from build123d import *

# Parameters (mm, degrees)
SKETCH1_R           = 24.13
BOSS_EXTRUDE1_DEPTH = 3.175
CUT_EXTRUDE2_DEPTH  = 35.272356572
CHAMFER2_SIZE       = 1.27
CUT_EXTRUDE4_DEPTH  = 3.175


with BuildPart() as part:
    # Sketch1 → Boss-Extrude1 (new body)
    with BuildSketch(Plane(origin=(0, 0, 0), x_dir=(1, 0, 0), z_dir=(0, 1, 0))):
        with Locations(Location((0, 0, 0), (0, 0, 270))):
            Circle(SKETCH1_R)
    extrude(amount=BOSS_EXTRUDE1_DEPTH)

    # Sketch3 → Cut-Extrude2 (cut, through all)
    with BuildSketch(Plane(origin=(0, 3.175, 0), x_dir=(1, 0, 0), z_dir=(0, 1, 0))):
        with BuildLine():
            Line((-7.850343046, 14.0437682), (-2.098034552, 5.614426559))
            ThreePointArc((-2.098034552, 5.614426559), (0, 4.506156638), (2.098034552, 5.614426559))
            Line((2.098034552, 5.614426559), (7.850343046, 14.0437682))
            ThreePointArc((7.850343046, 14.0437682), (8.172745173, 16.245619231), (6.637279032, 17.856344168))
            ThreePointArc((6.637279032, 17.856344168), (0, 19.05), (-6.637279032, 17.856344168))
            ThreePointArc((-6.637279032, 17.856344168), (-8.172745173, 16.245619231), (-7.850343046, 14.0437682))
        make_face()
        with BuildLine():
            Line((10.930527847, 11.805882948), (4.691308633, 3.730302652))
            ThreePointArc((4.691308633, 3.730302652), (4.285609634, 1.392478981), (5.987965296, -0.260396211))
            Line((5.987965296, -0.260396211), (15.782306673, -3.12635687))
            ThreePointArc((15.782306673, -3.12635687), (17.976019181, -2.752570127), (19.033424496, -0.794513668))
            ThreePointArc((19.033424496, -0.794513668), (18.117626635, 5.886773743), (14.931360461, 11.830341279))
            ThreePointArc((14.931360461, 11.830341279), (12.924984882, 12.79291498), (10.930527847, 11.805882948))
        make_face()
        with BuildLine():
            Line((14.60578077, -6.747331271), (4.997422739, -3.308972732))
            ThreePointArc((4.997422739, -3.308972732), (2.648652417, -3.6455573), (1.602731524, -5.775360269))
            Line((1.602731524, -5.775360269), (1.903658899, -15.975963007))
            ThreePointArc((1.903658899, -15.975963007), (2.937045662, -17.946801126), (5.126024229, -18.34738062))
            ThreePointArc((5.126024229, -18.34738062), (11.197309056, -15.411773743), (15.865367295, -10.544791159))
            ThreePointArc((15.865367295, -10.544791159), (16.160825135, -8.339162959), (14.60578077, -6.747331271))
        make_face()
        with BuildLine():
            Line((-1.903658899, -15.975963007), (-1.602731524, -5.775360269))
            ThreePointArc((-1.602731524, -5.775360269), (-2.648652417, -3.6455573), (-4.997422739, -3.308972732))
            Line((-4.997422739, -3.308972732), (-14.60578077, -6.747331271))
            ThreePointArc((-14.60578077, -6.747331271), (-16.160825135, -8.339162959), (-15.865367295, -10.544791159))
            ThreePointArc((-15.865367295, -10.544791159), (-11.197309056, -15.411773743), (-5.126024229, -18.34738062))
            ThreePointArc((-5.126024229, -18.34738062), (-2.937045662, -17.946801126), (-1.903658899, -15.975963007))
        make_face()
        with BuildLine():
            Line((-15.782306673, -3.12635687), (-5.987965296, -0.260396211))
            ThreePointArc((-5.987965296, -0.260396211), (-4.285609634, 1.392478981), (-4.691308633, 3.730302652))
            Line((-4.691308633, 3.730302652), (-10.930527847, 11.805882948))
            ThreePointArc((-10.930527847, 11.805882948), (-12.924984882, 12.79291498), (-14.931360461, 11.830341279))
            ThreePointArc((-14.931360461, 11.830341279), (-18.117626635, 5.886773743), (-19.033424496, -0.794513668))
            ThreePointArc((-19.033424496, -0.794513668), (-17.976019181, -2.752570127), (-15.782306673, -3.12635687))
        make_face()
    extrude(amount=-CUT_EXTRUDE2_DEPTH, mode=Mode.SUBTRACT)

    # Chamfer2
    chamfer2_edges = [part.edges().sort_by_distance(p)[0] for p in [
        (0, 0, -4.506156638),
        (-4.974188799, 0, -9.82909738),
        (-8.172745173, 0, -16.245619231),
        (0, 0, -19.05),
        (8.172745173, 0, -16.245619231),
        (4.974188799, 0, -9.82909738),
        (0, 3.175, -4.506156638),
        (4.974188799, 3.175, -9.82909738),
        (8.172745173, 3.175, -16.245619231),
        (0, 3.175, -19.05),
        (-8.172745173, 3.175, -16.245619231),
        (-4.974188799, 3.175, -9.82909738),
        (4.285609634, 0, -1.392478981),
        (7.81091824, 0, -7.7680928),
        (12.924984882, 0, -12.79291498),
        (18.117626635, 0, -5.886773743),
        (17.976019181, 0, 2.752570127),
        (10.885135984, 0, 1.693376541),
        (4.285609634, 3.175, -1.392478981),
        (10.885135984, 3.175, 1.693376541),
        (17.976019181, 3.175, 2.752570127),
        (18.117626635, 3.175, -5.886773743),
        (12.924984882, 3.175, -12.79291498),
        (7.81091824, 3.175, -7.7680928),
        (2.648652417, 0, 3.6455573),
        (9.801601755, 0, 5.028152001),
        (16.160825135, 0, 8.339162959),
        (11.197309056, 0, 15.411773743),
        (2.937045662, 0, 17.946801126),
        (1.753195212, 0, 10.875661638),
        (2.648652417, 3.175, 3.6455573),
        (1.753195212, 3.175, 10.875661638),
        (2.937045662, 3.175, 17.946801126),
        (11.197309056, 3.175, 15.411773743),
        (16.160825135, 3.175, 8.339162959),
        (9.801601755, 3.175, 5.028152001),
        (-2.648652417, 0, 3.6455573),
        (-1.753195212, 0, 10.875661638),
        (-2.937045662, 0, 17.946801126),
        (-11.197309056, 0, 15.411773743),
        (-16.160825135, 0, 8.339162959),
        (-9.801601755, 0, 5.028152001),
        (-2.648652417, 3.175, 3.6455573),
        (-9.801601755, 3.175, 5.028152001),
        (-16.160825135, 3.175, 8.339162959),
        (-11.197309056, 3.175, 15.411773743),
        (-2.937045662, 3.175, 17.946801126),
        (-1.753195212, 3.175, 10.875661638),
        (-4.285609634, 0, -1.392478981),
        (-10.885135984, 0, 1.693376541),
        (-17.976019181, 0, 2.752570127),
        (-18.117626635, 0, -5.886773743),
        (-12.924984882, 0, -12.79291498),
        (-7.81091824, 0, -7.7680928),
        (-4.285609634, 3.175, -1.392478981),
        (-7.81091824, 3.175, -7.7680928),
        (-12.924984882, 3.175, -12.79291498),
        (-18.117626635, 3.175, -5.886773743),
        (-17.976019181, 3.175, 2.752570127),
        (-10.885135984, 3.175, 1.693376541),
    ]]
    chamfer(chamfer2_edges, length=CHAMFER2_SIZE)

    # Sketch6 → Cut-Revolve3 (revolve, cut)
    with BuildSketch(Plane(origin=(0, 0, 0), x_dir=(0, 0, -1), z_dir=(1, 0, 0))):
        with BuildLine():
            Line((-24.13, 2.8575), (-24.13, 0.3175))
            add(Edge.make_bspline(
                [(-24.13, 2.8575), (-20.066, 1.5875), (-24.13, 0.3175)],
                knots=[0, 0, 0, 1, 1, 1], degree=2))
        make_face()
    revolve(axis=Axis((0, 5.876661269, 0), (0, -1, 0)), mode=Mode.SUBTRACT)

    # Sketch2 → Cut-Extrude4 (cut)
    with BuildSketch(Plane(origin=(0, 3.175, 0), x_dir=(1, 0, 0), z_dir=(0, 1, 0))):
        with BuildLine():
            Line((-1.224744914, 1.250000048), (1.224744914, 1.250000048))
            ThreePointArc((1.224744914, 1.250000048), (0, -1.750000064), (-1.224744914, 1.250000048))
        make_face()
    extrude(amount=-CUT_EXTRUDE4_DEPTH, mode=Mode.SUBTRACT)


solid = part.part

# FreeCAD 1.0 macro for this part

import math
import FreeCAD as App
import Part
import Sketcher
from FreeCAD import Vector
Q = App.Units.Quantity


def edges_at(feature, points):
    """Names of the edges that pass closest to the given points."""
    edges = feature.Shape.Edges
    near = lambda p: min(range(len(edges)), key=lambda i: edges[i].distToShape(Part.Vertex(*p))[0])
    return sorted({f"Edge{near(p) + 1}" for p in points})

doc = App.newDocument("Part")
body = doc.addObject("PartDesign::Body", "Body")

# Sketch on XZ plane
sketch1 = body.newObject("Sketcher::SketchObject", "Sketch")
sketch1.AttachmentSupport = (doc.getObject("XZ_Plane"), [""])
sketch1.MapMode = "FlatFace"
sketch1.addGeometry(Part.Circle(Vector(0, 0, 0), Vector(0, 0, 1), 24), False)
sketch1.addConstraint([
    Sketcher.Constraint("Coincident", 0, 3, -1, 1),
    Sketcher.Constraint("Diameter", 0, Q("1.9 in")),
])
pad1 = body.newObject("PartDesign::Pad", "Pad")
pad1.Profile = sketch1
pad1.Length = Q("0.125 in")
pad1.Reversed = True

# Sketch on XZ plane
sketch2 = body.newObject("Sketcher::SketchObject", "Sketch001")
sketch2.AttachmentSupport = (doc.getObject("XZ_Plane"), [""])
sketch2.MapMode = "FlatFace"
sketch2.AttachmentOffset = App.Placement(Vector(0, 0, -0.125 * 25.4), App.Rotation())
sketch2.addGeometry([
    Part.LineSegment(Vector(-7.9, -14, 0), Vector(-2.1, -5.6, 0)),  # 0
    Part.ArcOfCircle(Part.Circle(Vector(0, -7, 0), Vector(0, 0, 1), 2.5), math.radians(34), math.radians(146)),  # 1
    Part.LineSegment(Vector(2.1, -5.6, 0), Vector(7.9, -14, 0)),  # 2
    Part.ArcOfCircle(Part.Circle(Vector(5.8, -15.5, 0), Vector(0, 0, 1), 2.5), math.radians(-70), math.radians(34)),  # 3
    Part.ArcOfCircle(Part.Circle(Vector(0, 0, 0), Vector(0, 0, 1), 19), math.radians(-110), math.radians(-70)),  # 4
    Part.ArcOfCircle(Part.Circle(Vector(-5.8, -15.5, 0), Vector(0, 0, 1), 2.5), math.radians(146), math.radians(250)),  # 5
    Part.LineSegment(Vector(10.9, -11.8, 0), Vector(4.7, -3.7, 0)),  # 6
    Part.ArcOfCircle(Part.Circle(Vector(6.7, -2.2, 0), Vector(0, 0, 1), 2.5), math.radians(106), math.radians(218)),  # 7
    Part.LineSegment(Vector(6, 0.3, 0), Vector(15.8, 3.1, 0)),  # 8
    Part.ArcOfCircle(Part.Circle(Vector(16.5, 0.7, 0), Vector(0, 0, 1), 2.5), math.radians(2), math.radians(106)),  # 9
    Part.ArcOfCircle(Part.Circle(Vector(0, 0, 0), Vector(0, 0, 1), 19.1), math.radians(-38), math.radians(2)),  # 10
    Part.ArcOfCircle(Part.Circle(Vector(12.9, -10.3, 0), Vector(0, 0, 1), 2.5), math.radians(-142), math.radians(-38)),  # 11
    Part.LineSegment(Vector(14.6, 6.7, 0), Vector(5, 3.3, 0)),  # 12
    Part.ArcOfCircle(Part.Circle(Vector(4.1, 5.7, 0), Vector(0, 0, 1), 2.5), math.radians(178), math.radians(290)),  # 13
    Part.LineSegment(Vector(1.6, 5.8, 0), Vector(1.9, 16, 0)),  # 14
    Part.ArcOfCircle(Part.Circle(Vector(4.4, 15.9, 0), Vector(0, 0, 1), 2.5), math.radians(74), math.radians(178)),  # 15
    Part.ArcOfCircle(Part.Circle(Vector(0, 0, 0), Vector(0, 0, 1), 19.1), math.radians(34), math.radians(74)),  # 16
    Part.ArcOfCircle(Part.Circle(Vector(13.7, 9.1, 0), Vector(0, 0, 1), 2.5), math.radians(-70), math.radians(34)),  # 17
    Part.LineSegment(Vector(-1.9, 16, 0), Vector(-1.6, 5.8, 0)),  # 18
    Part.ArcOfCircle(Part.Circle(Vector(-4.1, 5.7, 0), Vector(0, 0, 1), 2.5), math.radians(-110), math.radians(2)),  # 19
    Part.LineSegment(Vector(-5, 3.3, 0), Vector(-14.6, 6.7, 0)),  # 20
    Part.ArcOfCircle(Part.Circle(Vector(-13.7, 9.1, 0), Vector(0, 0, 1), 2.5), math.radians(146), math.radians(250)),  # 21
    Part.ArcOfCircle(Part.Circle(Vector(0, 0, 0), Vector(0, 0, 1), 19.1), math.radians(106), math.radians(146)),  # 22
    Part.ArcOfCircle(Part.Circle(Vector(-4.4, 15.9, 0), Vector(0, 0, 1), 2.5), math.radians(2), math.radians(106)),  # 23
    Part.LineSegment(Vector(-15.8, 3.1, 0), Vector(-6, 0.3, 0)),  # 24
    Part.ArcOfCircle(Part.Circle(Vector(-6.7, -2.2, 0), Vector(0, 0, 1), 2.5), math.radians(-38), math.radians(74)),  # 25
    Part.LineSegment(Vector(-4.7, -3.7, 0), Vector(-10.9, -11.8, 0)),  # 26
    Part.ArcOfCircle(Part.Circle(Vector(-12.9, -10.3, 0), Vector(0, 0, 1), 2.5), math.radians(-142), math.radians(-38)),  # 27
    Part.ArcOfCircle(Part.Circle(Vector(0, 0, 0), Vector(0, 0, 1), 19.1), math.radians(178), math.radians(218)),  # 28
    Part.ArcOfCircle(Part.Circle(Vector(-16.5, 0.7, 0), Vector(0, 0, 1), 2.5), math.radians(74), math.radians(178)),  # 29
], False)
sketch2.addConstraint([
    Sketcher.Constraint("Tangent", 0, 2, 1, 2),
    Sketcher.Constraint("Tangent", 1, 1, 2, 1),
    Sketcher.Constraint("Tangent", 2, 2, 3, 2),
    Sketcher.Constraint("Tangent", 3, 1, 4, 2),
    Sketcher.Constraint("Tangent", 4, 1, 5, 2),
    Sketcher.Constraint("Tangent", 5, 1, 0, 1),
    Sketcher.Constraint("Tangent", 6, 2, 7, 2),
    Sketcher.Constraint("Tangent", 7, 1, 8, 1),
    Sketcher.Constraint("Tangent", 8, 2, 9, 2),
    Sketcher.Constraint("Tangent", 9, 1, 10, 2),
    Sketcher.Constraint("Tangent", 10, 1, 11, 2),
    Sketcher.Constraint("Tangent", 11, 1, 6, 1),
    Sketcher.Constraint("Tangent", 12, 2, 13, 2),
    Sketcher.Constraint("Tangent", 13, 1, 14, 1),
    Sketcher.Constraint("Tangent", 14, 2, 15, 2),
    Sketcher.Constraint("Tangent", 15, 1, 16, 2),
    Sketcher.Constraint("Tangent", 16, 1, 17, 2),
    Sketcher.Constraint("Tangent", 17, 1, 12, 1),
    Sketcher.Constraint("Tangent", 18, 2, 19, 2),
    Sketcher.Constraint("Tangent", 19, 1, 20, 1),
    Sketcher.Constraint("Tangent", 20, 2, 21, 2),
    Sketcher.Constraint("Tangent", 21, 1, 22, 2),
    Sketcher.Constraint("Tangent", 22, 1, 23, 2),
    Sketcher.Constraint("Tangent", 23, 1, 18, 1),
    Sketcher.Constraint("Tangent", 24, 2, 25, 2),
    Sketcher.Constraint("Tangent", 25, 1, 26, 1),
    Sketcher.Constraint("Tangent", 26, 2, 27, 2),
    Sketcher.Constraint("Tangent", 27, 1, 28, 2),
    Sketcher.Constraint("Tangent", 28, 1, 29, 2),
    Sketcher.Constraint("Tangent", 29, 1, 24, 1),
    Sketcher.Constraint("Coincident", 4, 3, -1, 1),
    Sketcher.Constraint("Coincident", 10, 3, -1, 1),
    Sketcher.Constraint("Coincident", 16, 3, -1, 1),
    Sketcher.Constraint("Coincident", 22, 3, -1, 1),
    Sketcher.Constraint("Coincident", 28, 3, -1, 1),
    Sketcher.Constraint("Equal", 1, 3),
    Sketcher.Constraint("Equal", 3, 5),
    Sketcher.Constraint("Equal", 5, 7),
    Sketcher.Constraint("Equal", 7, 9),
    Sketcher.Constraint("Equal", 4, 10),
    Sketcher.Constraint("Equal", 9, 11),
    Sketcher.Constraint("Equal", 11, 13),
    Sketcher.Constraint("Equal", 13, 15),
    Sketcher.Constraint("Equal", 10, 16),
    Sketcher.Constraint("Equal", 15, 17),
    Sketcher.Constraint("Equal", 17, 19),
    Sketcher.Constraint("Equal", 19, 21),
    Sketcher.Constraint("Equal", 16, 22),
    Sketcher.Constraint("Equal", 21, 23),
    Sketcher.Constraint("Equal", 23, 25),
    Sketcher.Constraint("Equal", 25, 27),
    Sketcher.Constraint("Equal", 22, 28),
    Sketcher.Constraint("Equal", 27, 29),
    Sketcher.Constraint("Symmetric", 13, 3, 19, 3, -2),
    Sketcher.Constraint("Symmetric", 7, 3, 25, 3, -2),
    Sketcher.Constraint("Symmetric", 0, 2, 1, 1, -2),
    Sketcher.Constraint("Horizontal", 17, 3, 21, 3),
    Sketcher.Constraint("Horizontal", 15, 3, 23, 3),
    Sketcher.Constraint("Horizontal", 11, 3, 27, 3),
    Sketcher.Constraint("Horizontal", 9, 3, 29, 3),
    Sketcher.Constraint("Equal", 2, 6),
    Sketcher.Constraint("Equal", 6, 8),
    Sketcher.Constraint("Equal", 8, 12),
    Sketcher.Constraint("Equal", 12, 14),
    Sketcher.Constraint("Radius", 1, Q("0.1 in")),
    Sketcher.Constraint("Radius", 4, Q("0.75 in")),
    Sketcher.Constraint("DistanceX", 3, 3, 11, 3, Q("0.2830002 in")),
    Sketcher.Constraint("DistanceY", 3, 3, -1, 1, Q("15.475498 mm")),
    Sketcher.Constraint("DistanceX", 5, 3, 7, 3, Q("12.453602 mm")),
    Sketcher.Constraint("DistanceY", 7, 3, 17, 3, Q("11.316201 mm")),
    Sketcher.Constraint("DistanceY", 6, 2, 7, 1, Q("3.990699 mm")),
    Sketcher.Constraint("DistanceY", 13, 3, 13, 1, Q("0.0749 mm")),
])
pocket1 = body.newObject("PartDesign::Pocket", "Pocket")
pocket1.Profile = sketch2
pocket1.Type = "ThroughAll"
pocket1.Reversed = True
doc.recompute()

chamfer = body.newObject("PartDesign::Chamfer", "Chamfer")
chamfer.Base = (pocket1, edges_at(pocket1, [
    (0, 0, -4.506),
    (-4.974, 0, -9.829),
    (-8.173, 0, -16.246),
    (0, 0, -19.05),
    (8.173, 0, -16.246),
    (4.974, 0, -9.829),
    (0, 3.175, -4.506),
    (4.974, 3.175, -9.829),
    (8.173, 3.175, -16.246),
    (0, 3.175, -19.05),
    (-8.173, 3.175, -16.246),
    (-4.974, 3.175, -9.829),
    (4.286, 0, -1.392),
    (7.811, 0, -7.768),
    (12.925, 0, -12.793),
    (18.118, 0, -5.887),
    (17.976, 0, 2.753),
    (10.885, 0, 1.693),
    (4.286, 3.175, -1.392),
    (10.885, 3.175, 1.693),
    (17.976, 3.175, 2.753),
    (18.118, 3.175, -5.887),
    (12.925, 3.175, -12.793),
    (7.811, 3.175, -7.768),
    (2.649, 0, 3.646),
    (9.802, 0, 5.028),
    (16.161, 0, 8.339),
    (11.197, 0, 15.412),
    (2.937, 0, 17.947),
    (1.753, 0, 10.876),
    (2.649, 3.175, 3.646),
    (1.753, 3.175, 10.876),
    (2.937, 3.175, 17.947),
    (11.197, 3.175, 15.412),
    (16.161, 3.175, 8.339),
    (9.802, 3.175, 5.028),
    (-2.649, 0, 3.646),
    (-1.753, 0, 10.876),
    (-2.937, 0, 17.947),
    (-11.197, 0, 15.412),
    (-16.161, 0, 8.339),
    (-9.802, 0, 5.028),
    (-2.649, 3.175, 3.646),
    (-9.802, 3.175, 5.028),
    (-16.161, 3.175, 8.339),
    (-11.197, 3.175, 15.412),
    (-2.937, 3.175, 17.947),
    (-1.753, 3.175, 10.876),
    (-4.286, 0, -1.392),
    (-10.885, 0, 1.693),
    (-17.976, 0, 2.753),
    (-18.118, 0, -5.887),
    (-12.925, 0, -12.793),
    (-7.811, 0, -7.768),
    (-4.286, 3.175, -1.392),
    (-7.811, 3.175, -7.768),
    (-12.925, 3.175, -12.793),
    (-18.118, 3.175, -5.887),
    (-17.976, 3.175, 2.753),
    (-10.885, 3.175, 1.693),
]))
chamfer.Size = Q("0.05 in")

# Sketch on YZ plane
sketch3 = body.newObject("Sketcher::SketchObject", "Sketch002")
sketch3.AttachmentSupport = (doc.getObject("YZ_Plane"), [""])
sketch3.MapMode = "FlatFace"
sketch3.addGeometry([
    Part.LineSegment(Vector(2.8575, 24.13, 0), Vector(0.3175, 24.13, 0)),
    Part.BSplineCurve([Vector(2.8575, 24.13, 0), Vector(1.5875, 20.066, 0), Vector(0.3175, 24.13, 0)], [3, 3], [0, 1], False, 2, [1, 1, 1], False),
], False)
sketch3.addConstraint([
    Sketcher.Constraint("Block", 1),
    Sketcher.Constraint("Coincident", 0, 1, 1, 1),
    Sketcher.Constraint("Coincident", 1, 2, 0, 2),
])
groove = body.newObject("PartDesign::Groove", "Groove")
groove.Profile = sketch3
groove.ReferenceAxis = (sketch3, ["H_Axis"])
groove.Angle = 360

# Sketch on XZ plane
sketch4 = body.newObject("Sketcher::SketchObject", "Sketch003")
sketch4.AttachmentSupport = (doc.getObject("XZ_Plane"), [""])
sketch4.MapMode = "FlatFace"
sketch4.AttachmentOffset = App.Placement(Vector(0, 0, -0.125 * 25.4), App.Rotation())
sketch4.addGeometry([
    Part.LineSegment(Vector(1.2, -1.3, 0), Vector(-1.2, -1.3, 0)),
    Part.ArcOfCircle(Part.Circle(Vector(0, 0, 0), Vector(0, 0, 1), 1.8), math.radians(-46), math.radians(226)),
], False)
sketch4.addConstraint([
    Sketcher.Constraint("Coincident", 0, 1, 1, 1),
    Sketcher.Constraint("Coincident", 1, 2, 0, 2),
    Sketcher.Constraint("Horizontal", 0),
    Sketcher.Constraint("Coincident", 1, 3, -1, 1),
    Sketcher.Constraint("Radius", 1, Q("1.75 mm")),
    Sketcher.Constraint("DistanceX", 0, 2, 0, 1, Q("2.44949 mm")),
])
pocket2 = body.newObject("PartDesign::Pocket", "Pocket001")
pocket2.Profile = sketch4
pocket2.Length = Q("0.125 in")
pocket2.Reversed = True

doc.recompute()
